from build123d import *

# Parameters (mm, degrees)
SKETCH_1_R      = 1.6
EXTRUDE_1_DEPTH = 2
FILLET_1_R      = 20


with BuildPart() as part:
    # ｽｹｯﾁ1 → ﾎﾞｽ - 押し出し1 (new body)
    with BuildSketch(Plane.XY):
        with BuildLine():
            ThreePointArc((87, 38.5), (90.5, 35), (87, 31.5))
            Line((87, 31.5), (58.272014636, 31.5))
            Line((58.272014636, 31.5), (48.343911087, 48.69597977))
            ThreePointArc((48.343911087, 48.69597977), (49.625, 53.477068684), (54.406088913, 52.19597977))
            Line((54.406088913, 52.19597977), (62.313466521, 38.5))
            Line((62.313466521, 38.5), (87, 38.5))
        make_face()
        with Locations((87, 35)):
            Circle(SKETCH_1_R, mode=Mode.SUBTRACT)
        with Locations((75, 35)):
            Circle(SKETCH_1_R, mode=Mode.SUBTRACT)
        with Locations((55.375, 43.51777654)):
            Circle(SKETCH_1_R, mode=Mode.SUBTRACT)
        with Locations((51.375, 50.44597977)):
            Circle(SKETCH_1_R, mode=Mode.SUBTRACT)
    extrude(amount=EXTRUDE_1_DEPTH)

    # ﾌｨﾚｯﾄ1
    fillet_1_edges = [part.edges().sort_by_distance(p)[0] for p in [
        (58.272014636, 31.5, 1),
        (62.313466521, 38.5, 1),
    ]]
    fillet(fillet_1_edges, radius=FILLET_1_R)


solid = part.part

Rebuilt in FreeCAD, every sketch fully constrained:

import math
import FreeCAD as App
import Part
import Sketcher

V = App.Vector
Q = App.Units.Quantity


def edges_at(feature, points):
    """Names of the edges that pass closest to the given points."""
    edges = feature.Shape.Edges
    near = lambda p: min(range(len(edges)), key=lambda i: edges[i].distToShape(Part.Vertex(*p))[0])
    return sorted({f"Edge{near(p) + 1}" for p in points})

doc = App.newDocument("Part")
params = doc.addObject("Spreadsheet::Sheet", "Params")
for row, (alias, value) in enumerate([
    ("sketch1_diameter", "3.2 mm"),
    ("sketch1_radius", "3.5 mm"),
    ("pad1_length", "2 mm"),
    ("fillet_radius", "20 mm"),
], start=1):
    params.set(f"A{row}", alias)
    params.set(f"B{row}", "=" + value)
    params.setAlias(f"B{row}", alias)

body = doc.addObject("PartDesign::Body", "Body")

# Sketch on XY plane
sketch1 = body.newObject("Sketcher::SketchObject", "Sketch")
sketch1.AttachmentSupport = (doc.getObject("XY_Plane"), [""])
sketch1.MapMode = "FlatFace"
sketch1.addGeometry(Part.ArcOfCircle(Part.Circle(V(87, 35, 0), V(0, 0, 1), 3.5), math.radians(-90), math.radians(90)), False)
sketch1.addGeometry(Part.LineSegment(V(87, 38.5, 0), V(62.3, 38.5, 0)), False)
sketch1.addGeometry(Part.LineSegment(V(62.3, 38.5, 0), V(54.4, 52.2, 0)), False)
sketch1.addGeometry(Part.ArcOfCircle(Part.Circle(V(51.4, 50.4, 0), V(0, 0, 1), 3.5), math.radians(30), math.radians(210)), False)
sketch1.addGeometry(Part.LineSegment(V(48.3, 48.7, 0), V(58.3, 31.5, 0)), False)
sketch1.addGeometry(Part.LineSegment(V(58.3, 31.5, 0), V(87, 31.5, 0)), False)
sketch1.addGeometry(Part.Circle(V(87, 35, 0), V(0, 0, 1), 1.6), False)
sketch1.addGeometry(Part.Circle(V(75, 35, 0), V(0, 0, 1), 1.6), False)
sketch1.addGeometry(Part.Circle(V(55.4, 43.5, 0), V(0, 0, 1), 1.6), False)
sketch1.addGeometry(Part.Circle(V(51.4, 50.4, 0), V(0, 0, 1), 1.6), False)
sketch1.addConstraint(Sketcher.Constraint("Tangent", 0, 2, 1, 1))
sketch1.addConstraint(Sketcher.Constraint("Coincident", 1, 2, 2, 1))
sketch1.addConstraint(Sketcher.Constraint("Tangent", 2, 2, 3, 1))
sketch1.addConstraint(Sketcher.Constraint("Tangent", 3, 2, 4, 1))
sketch1.addConstraint(Sketcher.Constraint("Coincident", 4, 2, 5, 1))
sketch1.addConstraint(Sketcher.Constraint("Tangent", 5, 2, 0, 1))
sketch1.addConstraint(Sketcher.Constraint("Horizontal", 1))
sketch1.addConstraint(Sketcher.Constraint("Horizontal", 5))
sketch1.addConstraint(Sketcher.Constraint("Coincident", 6, 3, 0, 3))
sketch1.addConstraint(Sketcher.Constraint("Coincident", 9, 3, 3, 3))
sketch1.addConstraint(Sketcher.Constraint("Equal", 0, 3))
sketch1.addConstraint(Sketcher.Constraint("Equal", 6, 7))
sketch1.addConstraint(Sketcher.Constraint("Equal", 7, 8))
sketch1.addConstraint(Sketcher.Constraint("Equal", 8, 9))
sketch1.addConstraint(Sketcher.Constraint("Parallel", 2, 4))
sketch1.addConstraint(Sketcher.Constraint("Horizontal", 6, 3, 7, 3))
sketch1.addConstraint(Sketcher.Constraint("Diameter", 6, 3.2))
sketch1.addConstraint(Sketcher.Constraint("Radius", 0, 3.5))
sketch1.addConstraint(Sketcher.Constraint("Angle", 2, Q("120 deg")))
sketch1.addConstraint(Sketcher.Constraint("DistanceX", -1, 1, 0, 3, 87.0))
sketch1.addConstraint(Sketcher.Constraint("DistanceY", -1, 1, 0, 3, 35.0))
sketch1.addConstraint(Sketcher.Constraint("DistanceX", -1, 1, 7, 3, 75.0))
sketch1.addConstraint(Sketcher.Constraint("DistanceX", 3, 3, 8, 3, 4.0))
sketch1.addConstraint(Sketcher.Constraint("DistanceX", -1, 1, 3, 3, 51.375))
sketch1.addConstraint(Sketcher.Constraint("DistanceX", 1, 2, 1, 1, 24.686533))
sketch1.addConstraint(Sketcher.Constraint("DistanceY", -1, 1, 8, 3, 43.517777))
sketch1.setExpression("Constraints[16]", "Params.sketch1_diameter")
sketch1.setExpression("Constraints[17]", "Params.sketch1_radius")
pad1 = body.newObject("PartDesign::Pad", "Pad")
pad1.Profile = sketch1
pad1.setExpression("Length", "Params.pad1_length")
doc.recompute()

fillet = body.newObject("PartDesign::Fillet", "Fillet")
fillet.Base = (pad1, edges_at(pad1, [(58.272, 31.5, 1), (62.313, 38.5, 1)]))
fillet.setExpression("Radius", "Params.fillet_radius")

doc.recompute()
